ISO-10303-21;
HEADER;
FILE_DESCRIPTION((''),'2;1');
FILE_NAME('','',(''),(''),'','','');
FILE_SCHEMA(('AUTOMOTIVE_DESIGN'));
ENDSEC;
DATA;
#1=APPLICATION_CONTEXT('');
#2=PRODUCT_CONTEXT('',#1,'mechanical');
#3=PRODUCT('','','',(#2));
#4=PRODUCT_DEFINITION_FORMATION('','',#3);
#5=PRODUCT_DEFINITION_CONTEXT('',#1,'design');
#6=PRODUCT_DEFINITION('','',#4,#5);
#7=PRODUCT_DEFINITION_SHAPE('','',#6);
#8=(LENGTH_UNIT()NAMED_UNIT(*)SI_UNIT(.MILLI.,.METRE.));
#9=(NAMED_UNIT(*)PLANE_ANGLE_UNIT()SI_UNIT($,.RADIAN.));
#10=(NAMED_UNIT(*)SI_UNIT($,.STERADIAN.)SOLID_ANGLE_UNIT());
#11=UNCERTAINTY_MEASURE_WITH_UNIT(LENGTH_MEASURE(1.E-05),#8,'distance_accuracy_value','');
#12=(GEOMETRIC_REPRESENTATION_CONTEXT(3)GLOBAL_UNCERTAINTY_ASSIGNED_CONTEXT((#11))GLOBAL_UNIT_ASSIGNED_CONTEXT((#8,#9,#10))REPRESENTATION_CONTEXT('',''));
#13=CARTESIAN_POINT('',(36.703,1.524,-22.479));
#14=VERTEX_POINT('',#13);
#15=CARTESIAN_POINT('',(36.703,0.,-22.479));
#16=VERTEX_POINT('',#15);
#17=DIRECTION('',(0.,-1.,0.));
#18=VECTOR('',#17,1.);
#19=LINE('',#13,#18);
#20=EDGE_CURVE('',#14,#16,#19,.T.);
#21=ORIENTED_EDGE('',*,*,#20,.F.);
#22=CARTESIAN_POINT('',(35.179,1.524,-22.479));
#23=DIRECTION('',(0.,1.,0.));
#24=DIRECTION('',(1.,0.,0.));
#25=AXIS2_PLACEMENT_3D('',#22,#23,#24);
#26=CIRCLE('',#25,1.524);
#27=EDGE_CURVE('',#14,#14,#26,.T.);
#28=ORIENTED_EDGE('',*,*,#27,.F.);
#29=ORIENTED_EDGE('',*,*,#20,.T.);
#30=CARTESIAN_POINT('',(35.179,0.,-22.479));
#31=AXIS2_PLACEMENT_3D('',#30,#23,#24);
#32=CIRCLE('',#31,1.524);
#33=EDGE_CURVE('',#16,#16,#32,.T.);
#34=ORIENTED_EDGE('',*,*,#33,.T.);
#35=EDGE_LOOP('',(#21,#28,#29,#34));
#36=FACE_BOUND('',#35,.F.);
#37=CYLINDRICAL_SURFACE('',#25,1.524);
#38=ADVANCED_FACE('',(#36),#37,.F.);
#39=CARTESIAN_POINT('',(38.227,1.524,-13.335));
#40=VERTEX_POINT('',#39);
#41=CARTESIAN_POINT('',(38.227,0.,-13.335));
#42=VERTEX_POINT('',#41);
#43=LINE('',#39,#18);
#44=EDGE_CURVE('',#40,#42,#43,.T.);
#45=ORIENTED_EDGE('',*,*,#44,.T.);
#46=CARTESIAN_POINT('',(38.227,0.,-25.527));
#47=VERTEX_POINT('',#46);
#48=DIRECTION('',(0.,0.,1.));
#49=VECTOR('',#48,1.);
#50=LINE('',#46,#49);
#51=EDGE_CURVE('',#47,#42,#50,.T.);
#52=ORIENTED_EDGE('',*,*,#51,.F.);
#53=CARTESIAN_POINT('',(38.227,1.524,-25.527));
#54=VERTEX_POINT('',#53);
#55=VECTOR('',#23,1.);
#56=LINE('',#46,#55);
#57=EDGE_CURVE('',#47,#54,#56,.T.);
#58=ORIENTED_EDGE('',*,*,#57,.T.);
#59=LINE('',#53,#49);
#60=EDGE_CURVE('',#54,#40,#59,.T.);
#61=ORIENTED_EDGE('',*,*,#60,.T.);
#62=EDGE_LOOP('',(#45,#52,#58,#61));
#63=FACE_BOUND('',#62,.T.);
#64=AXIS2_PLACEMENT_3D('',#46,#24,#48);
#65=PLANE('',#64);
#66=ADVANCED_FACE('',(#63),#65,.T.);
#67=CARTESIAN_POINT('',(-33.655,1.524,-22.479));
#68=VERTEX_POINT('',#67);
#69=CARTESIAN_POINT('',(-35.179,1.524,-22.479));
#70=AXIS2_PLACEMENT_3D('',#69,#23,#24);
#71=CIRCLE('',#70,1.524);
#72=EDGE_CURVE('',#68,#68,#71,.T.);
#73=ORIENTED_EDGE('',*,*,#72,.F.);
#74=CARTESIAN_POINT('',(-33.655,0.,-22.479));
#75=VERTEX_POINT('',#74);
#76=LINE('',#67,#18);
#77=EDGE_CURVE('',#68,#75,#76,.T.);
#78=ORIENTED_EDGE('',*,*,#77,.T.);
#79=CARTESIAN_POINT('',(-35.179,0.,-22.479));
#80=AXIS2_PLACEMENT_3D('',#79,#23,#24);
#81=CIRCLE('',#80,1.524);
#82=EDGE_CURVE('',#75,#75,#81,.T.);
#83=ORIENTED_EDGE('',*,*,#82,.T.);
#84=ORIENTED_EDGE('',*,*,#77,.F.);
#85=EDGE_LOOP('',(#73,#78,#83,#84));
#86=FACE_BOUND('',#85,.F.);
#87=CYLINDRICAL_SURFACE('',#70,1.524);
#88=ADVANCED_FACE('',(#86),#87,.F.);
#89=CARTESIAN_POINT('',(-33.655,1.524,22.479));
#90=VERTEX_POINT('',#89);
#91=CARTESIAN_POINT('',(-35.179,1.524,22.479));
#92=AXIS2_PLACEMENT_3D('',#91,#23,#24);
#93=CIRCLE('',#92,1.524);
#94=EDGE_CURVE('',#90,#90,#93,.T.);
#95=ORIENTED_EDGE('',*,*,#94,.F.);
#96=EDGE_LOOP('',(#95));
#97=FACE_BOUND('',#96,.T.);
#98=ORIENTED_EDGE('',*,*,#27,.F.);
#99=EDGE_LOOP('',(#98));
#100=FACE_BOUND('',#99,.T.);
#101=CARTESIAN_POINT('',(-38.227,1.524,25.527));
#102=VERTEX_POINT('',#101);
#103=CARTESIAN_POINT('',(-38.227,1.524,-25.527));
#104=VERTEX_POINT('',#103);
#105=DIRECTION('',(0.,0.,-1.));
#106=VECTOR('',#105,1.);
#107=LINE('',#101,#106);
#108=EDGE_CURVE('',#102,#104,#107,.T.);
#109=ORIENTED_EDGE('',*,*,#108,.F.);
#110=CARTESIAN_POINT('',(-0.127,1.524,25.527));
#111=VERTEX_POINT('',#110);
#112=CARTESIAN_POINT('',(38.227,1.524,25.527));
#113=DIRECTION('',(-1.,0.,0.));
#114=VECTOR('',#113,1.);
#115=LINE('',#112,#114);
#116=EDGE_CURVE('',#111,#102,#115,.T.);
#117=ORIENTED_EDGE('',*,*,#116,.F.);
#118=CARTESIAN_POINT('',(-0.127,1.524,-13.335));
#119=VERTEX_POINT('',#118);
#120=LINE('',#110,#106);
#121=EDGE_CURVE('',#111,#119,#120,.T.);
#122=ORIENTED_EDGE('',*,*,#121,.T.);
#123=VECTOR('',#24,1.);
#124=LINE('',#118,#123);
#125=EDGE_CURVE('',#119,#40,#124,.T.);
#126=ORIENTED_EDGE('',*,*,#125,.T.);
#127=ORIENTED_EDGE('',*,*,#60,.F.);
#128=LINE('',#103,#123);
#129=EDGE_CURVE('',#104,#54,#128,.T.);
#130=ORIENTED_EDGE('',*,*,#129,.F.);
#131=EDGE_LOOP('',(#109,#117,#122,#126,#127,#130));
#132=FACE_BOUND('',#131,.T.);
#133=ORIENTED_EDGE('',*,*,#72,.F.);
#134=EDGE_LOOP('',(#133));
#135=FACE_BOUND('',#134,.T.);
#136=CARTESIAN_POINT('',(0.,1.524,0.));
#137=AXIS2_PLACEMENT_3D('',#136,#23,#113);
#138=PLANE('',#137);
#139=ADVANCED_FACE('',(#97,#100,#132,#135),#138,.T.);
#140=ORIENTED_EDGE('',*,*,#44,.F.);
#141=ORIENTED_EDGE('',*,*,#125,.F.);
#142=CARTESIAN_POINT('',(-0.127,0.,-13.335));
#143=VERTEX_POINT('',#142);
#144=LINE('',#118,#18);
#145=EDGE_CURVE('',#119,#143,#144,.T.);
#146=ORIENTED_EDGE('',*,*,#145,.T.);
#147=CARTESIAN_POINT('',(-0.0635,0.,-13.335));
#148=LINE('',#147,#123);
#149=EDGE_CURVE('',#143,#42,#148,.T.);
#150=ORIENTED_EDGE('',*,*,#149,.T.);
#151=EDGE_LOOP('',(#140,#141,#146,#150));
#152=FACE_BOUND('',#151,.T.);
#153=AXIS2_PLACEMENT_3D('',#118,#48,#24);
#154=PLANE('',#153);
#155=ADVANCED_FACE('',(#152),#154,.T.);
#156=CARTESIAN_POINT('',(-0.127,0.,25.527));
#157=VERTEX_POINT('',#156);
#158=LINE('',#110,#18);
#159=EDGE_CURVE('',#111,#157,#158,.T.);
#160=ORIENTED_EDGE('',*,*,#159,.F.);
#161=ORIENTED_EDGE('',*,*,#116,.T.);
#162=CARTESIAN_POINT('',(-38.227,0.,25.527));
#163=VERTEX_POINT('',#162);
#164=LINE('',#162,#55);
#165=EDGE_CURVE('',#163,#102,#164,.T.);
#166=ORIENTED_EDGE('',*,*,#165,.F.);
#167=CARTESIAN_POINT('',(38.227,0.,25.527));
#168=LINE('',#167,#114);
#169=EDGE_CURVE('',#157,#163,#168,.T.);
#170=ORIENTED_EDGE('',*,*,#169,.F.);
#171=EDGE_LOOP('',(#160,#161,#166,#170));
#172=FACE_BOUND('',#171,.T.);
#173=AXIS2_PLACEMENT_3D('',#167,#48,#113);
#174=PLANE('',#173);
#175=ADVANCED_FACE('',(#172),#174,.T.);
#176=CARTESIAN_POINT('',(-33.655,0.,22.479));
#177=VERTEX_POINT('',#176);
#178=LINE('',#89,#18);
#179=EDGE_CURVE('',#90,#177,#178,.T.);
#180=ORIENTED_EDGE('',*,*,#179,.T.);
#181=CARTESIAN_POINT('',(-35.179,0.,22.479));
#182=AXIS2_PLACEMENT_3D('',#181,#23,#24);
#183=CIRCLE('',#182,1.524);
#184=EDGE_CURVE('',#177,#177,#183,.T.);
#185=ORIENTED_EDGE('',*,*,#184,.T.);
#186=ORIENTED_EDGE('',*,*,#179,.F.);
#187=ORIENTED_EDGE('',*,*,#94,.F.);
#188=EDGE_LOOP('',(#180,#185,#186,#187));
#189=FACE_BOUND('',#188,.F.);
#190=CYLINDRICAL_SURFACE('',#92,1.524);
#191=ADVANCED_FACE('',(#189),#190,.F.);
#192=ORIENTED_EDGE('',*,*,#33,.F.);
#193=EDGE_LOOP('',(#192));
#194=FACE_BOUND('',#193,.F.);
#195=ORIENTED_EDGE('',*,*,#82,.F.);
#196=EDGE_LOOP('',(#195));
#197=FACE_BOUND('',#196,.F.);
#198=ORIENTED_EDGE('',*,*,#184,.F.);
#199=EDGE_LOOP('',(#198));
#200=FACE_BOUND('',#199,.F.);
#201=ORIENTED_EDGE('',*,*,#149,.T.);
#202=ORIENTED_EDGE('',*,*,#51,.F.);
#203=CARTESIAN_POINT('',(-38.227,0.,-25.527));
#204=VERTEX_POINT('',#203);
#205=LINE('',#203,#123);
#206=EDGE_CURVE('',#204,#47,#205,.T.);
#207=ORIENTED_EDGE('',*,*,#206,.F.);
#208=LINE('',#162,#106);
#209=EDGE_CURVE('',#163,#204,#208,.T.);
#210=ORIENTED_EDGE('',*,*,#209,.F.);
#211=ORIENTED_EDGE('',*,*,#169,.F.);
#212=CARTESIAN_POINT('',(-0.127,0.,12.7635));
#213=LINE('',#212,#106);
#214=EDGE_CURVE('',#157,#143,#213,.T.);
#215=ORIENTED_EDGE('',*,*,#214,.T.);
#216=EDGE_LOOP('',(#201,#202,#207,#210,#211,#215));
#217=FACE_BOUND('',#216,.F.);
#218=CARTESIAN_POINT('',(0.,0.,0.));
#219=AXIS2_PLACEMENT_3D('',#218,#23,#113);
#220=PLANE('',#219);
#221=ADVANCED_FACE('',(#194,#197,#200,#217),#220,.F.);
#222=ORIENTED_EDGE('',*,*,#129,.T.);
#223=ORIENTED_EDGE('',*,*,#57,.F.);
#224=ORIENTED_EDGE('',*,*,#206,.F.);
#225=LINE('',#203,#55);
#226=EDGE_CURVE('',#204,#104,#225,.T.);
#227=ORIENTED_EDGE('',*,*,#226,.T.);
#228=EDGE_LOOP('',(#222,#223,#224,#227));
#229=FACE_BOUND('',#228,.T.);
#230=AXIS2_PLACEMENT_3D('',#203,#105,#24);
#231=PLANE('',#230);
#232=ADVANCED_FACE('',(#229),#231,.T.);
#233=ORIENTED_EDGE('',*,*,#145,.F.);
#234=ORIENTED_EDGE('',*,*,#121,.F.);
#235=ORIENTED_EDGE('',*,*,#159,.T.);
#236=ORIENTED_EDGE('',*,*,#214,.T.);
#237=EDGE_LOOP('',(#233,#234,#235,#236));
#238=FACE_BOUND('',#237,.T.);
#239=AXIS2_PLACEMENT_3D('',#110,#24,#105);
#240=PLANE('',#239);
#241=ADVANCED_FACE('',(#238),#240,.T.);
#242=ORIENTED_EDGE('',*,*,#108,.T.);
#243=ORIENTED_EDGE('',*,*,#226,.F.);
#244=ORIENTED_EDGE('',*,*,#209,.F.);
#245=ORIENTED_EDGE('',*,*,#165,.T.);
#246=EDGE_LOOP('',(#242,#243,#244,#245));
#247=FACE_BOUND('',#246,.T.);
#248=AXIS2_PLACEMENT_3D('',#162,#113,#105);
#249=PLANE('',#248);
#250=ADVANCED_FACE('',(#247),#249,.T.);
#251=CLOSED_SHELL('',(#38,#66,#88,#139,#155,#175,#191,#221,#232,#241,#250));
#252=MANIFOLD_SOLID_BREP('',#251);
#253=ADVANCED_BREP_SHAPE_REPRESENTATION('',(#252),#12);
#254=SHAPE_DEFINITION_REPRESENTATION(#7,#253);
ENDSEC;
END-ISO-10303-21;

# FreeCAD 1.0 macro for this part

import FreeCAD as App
import Part
import Sketcher
Q = App.Units.Quantity

doc = App.newDocument("Part")
body = doc.addObject("PartDesign::Body", "Body")

# Sketch on XZ plane
sketch1 = doc.addObject("Sketcher::SketchObject", "Sketch")
body.addObject(sketch1)
sketch1.AttachmentSupport = (doc.XZ_Plane, [""])
sketch1.MapMode = "FlatFace"
sketch1.addGeometry(Part.LineSegment(App.Vector(-38, 26, 0), App.Vector(38, 26, 0)), False)
sketch1.addGeometry(Part.LineSegment(App.Vector(38, 26, 0), App.Vector(38, -26, 0)), False)
sketch1.addGeometry(Part.LineSegment(App.Vector(38, -26, 0), App.Vector(-38, -26, 0)), False)
sketch1.addGeometry(Part.LineSegment(App.Vector(-38, -26, 0), App.Vector(-38, 26, 0)), False)
sketch1.addConstraint(Sketcher.Constraint("Coincident", 0, 2, 1, 1))
sketch1.addConstraint(Sketcher.Constraint("Coincident", 1, 2, 2, 1))
sketch1.addConstraint(Sketcher.Constraint("Coincident", 2, 2, 3, 1))
sketch1.addConstraint(Sketcher.Constraint("Coincident", 3, 2, 0, 1))
sketch1.addConstraint(Sketcher.Constraint("Horizontal", 0))
sketch1.addConstraint(Sketcher.Constraint("Vertical", 1))
sketch1.addConstraint(Sketcher.Constraint("Horizontal", 2))
sketch1.addConstraint(Sketcher.Constraint("Vertical", 3))
sketch1.addConstraint(Sketcher.Constraint("Symmetric", 0, 2, 2, 2, -1, 1))
sketch1.addConstraint(Sketcher.Constraint("DistanceX", 0, 1, 0, 2, Q("3.01 in")))
sketch1.addConstraint(Sketcher.Constraint("DistanceY", 1, 2, 1, 1, Q("2.01 in")))
pad1 = doc.addObject("PartDesign::Pad", "Pad")
body.addObject(pad1)
pad1.Profile = sketch1
pad1.Length = Q("0.06 in")
pad1.Reversed = True

# Sketch on XZ plane
sketch2 = doc.addObject("Sketcher::SketchObject", "Sketch001")
body.addObject(sketch2)
sketch2.AttachmentSupport = (doc.XZ_Plane, [""])
sketch2.MapMode = "FlatFace"
sketch2.AttachmentOffset = App.Placement(App.Vector(0, 0, -0.06 * 25.4), App.Rotation())
sketch2.addGeometry(Part.Circle(App.Vector(-35.2, -22.5, 0), App.Vector(0, 0, 1), 1.5), False)
sketch2.addGeometry(Part.Circle(App.Vector(-35.2, 22.5, 0), App.Vector(0, 0, 1), 1.5), False)
sketch2.addGeometry(Part.Circle(App.Vector(35.2, -22.5, 0), App.Vector(0, 0, 1), 1.5), False)
sketch2.addGeometry(Part.Circle(App.Vector(35.2, 22.5, 0), App.Vector(0, 0, 1), 1.5), False)
sketch2.addConstraint(Sketcher.Constraint("Equal", 0, 1))
sketch2.addConstraint(Sketcher.Constraint("Equal", 1, 2))
sketch2.addConstraint(Sketcher.Constraint("Equal", 2, 3))
sketch2.addConstraint(Sketcher.Constraint("Symmetric", 1, 3, 2, 3, -1, 1))
sketch2.addConstraint(Sketcher.Constraint("Symmetric", 0, 3, 3, 3, -1, 1))
sketch2.addConstraint(Sketcher.Constraint("Symmetric", 0, 3, 2, 3, -2))
sketch2.addConstraint(Sketcher.Constraint("Diameter", 0, Q("0.12 in")))
sketch2.addConstraint(Sketcher.Constraint("DistanceY", 0, 3, 1, 3, Q("1.77 in")))
sketch2.addConstraint(Sketcher.Constraint("DistanceX", 0, 3, 2, 3, Q("2.77 in")))
pocket1 = doc.addObject("PartDesign::Pocket", "Pocket")
body.addObject(pocket1)
pocket1.Profile = sketch2
pocket1.Type = "UpToFirst"
pocket1.Reversed = True

# Sketch on XZ plane
sketch3 = doc.addObject("Sketcher::SketchObject", "Sketch002")
body.addObject(sketch3)
sketch3.AttachmentSupport = (doc.XZ_Plane, [""])
sketch3.MapMode = "FlatFace"
sketch3.AttachmentOffset = App.Placement(App.Vector(0, 0, -0.06 * 25.4), App.Rotation())
sketch3.addGeometry(Part.LineSegment(App.Vector(0, 26, 0), App.Vector(38, 26, 0)), False)
sketch3.addGeometry(Part.LineSegment(App.Vector(38, 26, 0), App.Vector(38, -13, 0)), False)
sketch3.addGeometry(Part.LineSegment(App.Vector(38, -13, 0), App.Vector(0, -13, 0)), False)
sketch3.addGeometry(Part.LineSegment(App.Vector(0, -13, 0), App.Vector(0, 26, 0)), False)
sketch3.addConstraint(Sketcher.Constraint("Coincident", 0, 2, 1, 1))
sketch3.addConstraint(Sketcher.Constraint("Coincident", 1, 2, 2, 1))
sketch3.addConstraint(Sketcher.Constraint("Coincident", 2, 2, 3, 1))
sketch3.addConstraint(Sketcher.Constraint("Coincident", 3, 2, 0, 1))
sketch3.addConstraint(Sketcher.Constraint("Horizontal", 0))
sketch3.addConstraint(Sketcher.Constraint("Vertical", 1))
sketch3.addConstraint(Sketcher.Constraint("Horizontal", 2))
sketch3.addConstraint(Sketcher.Constraint("Vertical", 3))
sketch3.addConstraint(Sketcher.Constraint("DistanceX", 0, 1, 0, 2, Q("1.51 in")))
sketch3.addConstraint(Sketcher.Constraint("DistanceY", 1, 2, 1, 1, Q("1.53 in")))
sketch3.addConstraint(Sketcher.Constraint("DistanceX", -1, 1, 0, 2, Q("1.505 in")))
sketch3.addConstraint(Sketcher.Constraint("DistanceY", -1, 1, 0, 2, Q("1.005 in")))
pocket2 = doc.addObject("PartDesign::Pocket", "Pocket001")
body.addObject(pocket2)
pocket2.Profile = sketch3
pocket2.Length = Q("1 in")
pocket2.Reversed = True

doc.recompute()
